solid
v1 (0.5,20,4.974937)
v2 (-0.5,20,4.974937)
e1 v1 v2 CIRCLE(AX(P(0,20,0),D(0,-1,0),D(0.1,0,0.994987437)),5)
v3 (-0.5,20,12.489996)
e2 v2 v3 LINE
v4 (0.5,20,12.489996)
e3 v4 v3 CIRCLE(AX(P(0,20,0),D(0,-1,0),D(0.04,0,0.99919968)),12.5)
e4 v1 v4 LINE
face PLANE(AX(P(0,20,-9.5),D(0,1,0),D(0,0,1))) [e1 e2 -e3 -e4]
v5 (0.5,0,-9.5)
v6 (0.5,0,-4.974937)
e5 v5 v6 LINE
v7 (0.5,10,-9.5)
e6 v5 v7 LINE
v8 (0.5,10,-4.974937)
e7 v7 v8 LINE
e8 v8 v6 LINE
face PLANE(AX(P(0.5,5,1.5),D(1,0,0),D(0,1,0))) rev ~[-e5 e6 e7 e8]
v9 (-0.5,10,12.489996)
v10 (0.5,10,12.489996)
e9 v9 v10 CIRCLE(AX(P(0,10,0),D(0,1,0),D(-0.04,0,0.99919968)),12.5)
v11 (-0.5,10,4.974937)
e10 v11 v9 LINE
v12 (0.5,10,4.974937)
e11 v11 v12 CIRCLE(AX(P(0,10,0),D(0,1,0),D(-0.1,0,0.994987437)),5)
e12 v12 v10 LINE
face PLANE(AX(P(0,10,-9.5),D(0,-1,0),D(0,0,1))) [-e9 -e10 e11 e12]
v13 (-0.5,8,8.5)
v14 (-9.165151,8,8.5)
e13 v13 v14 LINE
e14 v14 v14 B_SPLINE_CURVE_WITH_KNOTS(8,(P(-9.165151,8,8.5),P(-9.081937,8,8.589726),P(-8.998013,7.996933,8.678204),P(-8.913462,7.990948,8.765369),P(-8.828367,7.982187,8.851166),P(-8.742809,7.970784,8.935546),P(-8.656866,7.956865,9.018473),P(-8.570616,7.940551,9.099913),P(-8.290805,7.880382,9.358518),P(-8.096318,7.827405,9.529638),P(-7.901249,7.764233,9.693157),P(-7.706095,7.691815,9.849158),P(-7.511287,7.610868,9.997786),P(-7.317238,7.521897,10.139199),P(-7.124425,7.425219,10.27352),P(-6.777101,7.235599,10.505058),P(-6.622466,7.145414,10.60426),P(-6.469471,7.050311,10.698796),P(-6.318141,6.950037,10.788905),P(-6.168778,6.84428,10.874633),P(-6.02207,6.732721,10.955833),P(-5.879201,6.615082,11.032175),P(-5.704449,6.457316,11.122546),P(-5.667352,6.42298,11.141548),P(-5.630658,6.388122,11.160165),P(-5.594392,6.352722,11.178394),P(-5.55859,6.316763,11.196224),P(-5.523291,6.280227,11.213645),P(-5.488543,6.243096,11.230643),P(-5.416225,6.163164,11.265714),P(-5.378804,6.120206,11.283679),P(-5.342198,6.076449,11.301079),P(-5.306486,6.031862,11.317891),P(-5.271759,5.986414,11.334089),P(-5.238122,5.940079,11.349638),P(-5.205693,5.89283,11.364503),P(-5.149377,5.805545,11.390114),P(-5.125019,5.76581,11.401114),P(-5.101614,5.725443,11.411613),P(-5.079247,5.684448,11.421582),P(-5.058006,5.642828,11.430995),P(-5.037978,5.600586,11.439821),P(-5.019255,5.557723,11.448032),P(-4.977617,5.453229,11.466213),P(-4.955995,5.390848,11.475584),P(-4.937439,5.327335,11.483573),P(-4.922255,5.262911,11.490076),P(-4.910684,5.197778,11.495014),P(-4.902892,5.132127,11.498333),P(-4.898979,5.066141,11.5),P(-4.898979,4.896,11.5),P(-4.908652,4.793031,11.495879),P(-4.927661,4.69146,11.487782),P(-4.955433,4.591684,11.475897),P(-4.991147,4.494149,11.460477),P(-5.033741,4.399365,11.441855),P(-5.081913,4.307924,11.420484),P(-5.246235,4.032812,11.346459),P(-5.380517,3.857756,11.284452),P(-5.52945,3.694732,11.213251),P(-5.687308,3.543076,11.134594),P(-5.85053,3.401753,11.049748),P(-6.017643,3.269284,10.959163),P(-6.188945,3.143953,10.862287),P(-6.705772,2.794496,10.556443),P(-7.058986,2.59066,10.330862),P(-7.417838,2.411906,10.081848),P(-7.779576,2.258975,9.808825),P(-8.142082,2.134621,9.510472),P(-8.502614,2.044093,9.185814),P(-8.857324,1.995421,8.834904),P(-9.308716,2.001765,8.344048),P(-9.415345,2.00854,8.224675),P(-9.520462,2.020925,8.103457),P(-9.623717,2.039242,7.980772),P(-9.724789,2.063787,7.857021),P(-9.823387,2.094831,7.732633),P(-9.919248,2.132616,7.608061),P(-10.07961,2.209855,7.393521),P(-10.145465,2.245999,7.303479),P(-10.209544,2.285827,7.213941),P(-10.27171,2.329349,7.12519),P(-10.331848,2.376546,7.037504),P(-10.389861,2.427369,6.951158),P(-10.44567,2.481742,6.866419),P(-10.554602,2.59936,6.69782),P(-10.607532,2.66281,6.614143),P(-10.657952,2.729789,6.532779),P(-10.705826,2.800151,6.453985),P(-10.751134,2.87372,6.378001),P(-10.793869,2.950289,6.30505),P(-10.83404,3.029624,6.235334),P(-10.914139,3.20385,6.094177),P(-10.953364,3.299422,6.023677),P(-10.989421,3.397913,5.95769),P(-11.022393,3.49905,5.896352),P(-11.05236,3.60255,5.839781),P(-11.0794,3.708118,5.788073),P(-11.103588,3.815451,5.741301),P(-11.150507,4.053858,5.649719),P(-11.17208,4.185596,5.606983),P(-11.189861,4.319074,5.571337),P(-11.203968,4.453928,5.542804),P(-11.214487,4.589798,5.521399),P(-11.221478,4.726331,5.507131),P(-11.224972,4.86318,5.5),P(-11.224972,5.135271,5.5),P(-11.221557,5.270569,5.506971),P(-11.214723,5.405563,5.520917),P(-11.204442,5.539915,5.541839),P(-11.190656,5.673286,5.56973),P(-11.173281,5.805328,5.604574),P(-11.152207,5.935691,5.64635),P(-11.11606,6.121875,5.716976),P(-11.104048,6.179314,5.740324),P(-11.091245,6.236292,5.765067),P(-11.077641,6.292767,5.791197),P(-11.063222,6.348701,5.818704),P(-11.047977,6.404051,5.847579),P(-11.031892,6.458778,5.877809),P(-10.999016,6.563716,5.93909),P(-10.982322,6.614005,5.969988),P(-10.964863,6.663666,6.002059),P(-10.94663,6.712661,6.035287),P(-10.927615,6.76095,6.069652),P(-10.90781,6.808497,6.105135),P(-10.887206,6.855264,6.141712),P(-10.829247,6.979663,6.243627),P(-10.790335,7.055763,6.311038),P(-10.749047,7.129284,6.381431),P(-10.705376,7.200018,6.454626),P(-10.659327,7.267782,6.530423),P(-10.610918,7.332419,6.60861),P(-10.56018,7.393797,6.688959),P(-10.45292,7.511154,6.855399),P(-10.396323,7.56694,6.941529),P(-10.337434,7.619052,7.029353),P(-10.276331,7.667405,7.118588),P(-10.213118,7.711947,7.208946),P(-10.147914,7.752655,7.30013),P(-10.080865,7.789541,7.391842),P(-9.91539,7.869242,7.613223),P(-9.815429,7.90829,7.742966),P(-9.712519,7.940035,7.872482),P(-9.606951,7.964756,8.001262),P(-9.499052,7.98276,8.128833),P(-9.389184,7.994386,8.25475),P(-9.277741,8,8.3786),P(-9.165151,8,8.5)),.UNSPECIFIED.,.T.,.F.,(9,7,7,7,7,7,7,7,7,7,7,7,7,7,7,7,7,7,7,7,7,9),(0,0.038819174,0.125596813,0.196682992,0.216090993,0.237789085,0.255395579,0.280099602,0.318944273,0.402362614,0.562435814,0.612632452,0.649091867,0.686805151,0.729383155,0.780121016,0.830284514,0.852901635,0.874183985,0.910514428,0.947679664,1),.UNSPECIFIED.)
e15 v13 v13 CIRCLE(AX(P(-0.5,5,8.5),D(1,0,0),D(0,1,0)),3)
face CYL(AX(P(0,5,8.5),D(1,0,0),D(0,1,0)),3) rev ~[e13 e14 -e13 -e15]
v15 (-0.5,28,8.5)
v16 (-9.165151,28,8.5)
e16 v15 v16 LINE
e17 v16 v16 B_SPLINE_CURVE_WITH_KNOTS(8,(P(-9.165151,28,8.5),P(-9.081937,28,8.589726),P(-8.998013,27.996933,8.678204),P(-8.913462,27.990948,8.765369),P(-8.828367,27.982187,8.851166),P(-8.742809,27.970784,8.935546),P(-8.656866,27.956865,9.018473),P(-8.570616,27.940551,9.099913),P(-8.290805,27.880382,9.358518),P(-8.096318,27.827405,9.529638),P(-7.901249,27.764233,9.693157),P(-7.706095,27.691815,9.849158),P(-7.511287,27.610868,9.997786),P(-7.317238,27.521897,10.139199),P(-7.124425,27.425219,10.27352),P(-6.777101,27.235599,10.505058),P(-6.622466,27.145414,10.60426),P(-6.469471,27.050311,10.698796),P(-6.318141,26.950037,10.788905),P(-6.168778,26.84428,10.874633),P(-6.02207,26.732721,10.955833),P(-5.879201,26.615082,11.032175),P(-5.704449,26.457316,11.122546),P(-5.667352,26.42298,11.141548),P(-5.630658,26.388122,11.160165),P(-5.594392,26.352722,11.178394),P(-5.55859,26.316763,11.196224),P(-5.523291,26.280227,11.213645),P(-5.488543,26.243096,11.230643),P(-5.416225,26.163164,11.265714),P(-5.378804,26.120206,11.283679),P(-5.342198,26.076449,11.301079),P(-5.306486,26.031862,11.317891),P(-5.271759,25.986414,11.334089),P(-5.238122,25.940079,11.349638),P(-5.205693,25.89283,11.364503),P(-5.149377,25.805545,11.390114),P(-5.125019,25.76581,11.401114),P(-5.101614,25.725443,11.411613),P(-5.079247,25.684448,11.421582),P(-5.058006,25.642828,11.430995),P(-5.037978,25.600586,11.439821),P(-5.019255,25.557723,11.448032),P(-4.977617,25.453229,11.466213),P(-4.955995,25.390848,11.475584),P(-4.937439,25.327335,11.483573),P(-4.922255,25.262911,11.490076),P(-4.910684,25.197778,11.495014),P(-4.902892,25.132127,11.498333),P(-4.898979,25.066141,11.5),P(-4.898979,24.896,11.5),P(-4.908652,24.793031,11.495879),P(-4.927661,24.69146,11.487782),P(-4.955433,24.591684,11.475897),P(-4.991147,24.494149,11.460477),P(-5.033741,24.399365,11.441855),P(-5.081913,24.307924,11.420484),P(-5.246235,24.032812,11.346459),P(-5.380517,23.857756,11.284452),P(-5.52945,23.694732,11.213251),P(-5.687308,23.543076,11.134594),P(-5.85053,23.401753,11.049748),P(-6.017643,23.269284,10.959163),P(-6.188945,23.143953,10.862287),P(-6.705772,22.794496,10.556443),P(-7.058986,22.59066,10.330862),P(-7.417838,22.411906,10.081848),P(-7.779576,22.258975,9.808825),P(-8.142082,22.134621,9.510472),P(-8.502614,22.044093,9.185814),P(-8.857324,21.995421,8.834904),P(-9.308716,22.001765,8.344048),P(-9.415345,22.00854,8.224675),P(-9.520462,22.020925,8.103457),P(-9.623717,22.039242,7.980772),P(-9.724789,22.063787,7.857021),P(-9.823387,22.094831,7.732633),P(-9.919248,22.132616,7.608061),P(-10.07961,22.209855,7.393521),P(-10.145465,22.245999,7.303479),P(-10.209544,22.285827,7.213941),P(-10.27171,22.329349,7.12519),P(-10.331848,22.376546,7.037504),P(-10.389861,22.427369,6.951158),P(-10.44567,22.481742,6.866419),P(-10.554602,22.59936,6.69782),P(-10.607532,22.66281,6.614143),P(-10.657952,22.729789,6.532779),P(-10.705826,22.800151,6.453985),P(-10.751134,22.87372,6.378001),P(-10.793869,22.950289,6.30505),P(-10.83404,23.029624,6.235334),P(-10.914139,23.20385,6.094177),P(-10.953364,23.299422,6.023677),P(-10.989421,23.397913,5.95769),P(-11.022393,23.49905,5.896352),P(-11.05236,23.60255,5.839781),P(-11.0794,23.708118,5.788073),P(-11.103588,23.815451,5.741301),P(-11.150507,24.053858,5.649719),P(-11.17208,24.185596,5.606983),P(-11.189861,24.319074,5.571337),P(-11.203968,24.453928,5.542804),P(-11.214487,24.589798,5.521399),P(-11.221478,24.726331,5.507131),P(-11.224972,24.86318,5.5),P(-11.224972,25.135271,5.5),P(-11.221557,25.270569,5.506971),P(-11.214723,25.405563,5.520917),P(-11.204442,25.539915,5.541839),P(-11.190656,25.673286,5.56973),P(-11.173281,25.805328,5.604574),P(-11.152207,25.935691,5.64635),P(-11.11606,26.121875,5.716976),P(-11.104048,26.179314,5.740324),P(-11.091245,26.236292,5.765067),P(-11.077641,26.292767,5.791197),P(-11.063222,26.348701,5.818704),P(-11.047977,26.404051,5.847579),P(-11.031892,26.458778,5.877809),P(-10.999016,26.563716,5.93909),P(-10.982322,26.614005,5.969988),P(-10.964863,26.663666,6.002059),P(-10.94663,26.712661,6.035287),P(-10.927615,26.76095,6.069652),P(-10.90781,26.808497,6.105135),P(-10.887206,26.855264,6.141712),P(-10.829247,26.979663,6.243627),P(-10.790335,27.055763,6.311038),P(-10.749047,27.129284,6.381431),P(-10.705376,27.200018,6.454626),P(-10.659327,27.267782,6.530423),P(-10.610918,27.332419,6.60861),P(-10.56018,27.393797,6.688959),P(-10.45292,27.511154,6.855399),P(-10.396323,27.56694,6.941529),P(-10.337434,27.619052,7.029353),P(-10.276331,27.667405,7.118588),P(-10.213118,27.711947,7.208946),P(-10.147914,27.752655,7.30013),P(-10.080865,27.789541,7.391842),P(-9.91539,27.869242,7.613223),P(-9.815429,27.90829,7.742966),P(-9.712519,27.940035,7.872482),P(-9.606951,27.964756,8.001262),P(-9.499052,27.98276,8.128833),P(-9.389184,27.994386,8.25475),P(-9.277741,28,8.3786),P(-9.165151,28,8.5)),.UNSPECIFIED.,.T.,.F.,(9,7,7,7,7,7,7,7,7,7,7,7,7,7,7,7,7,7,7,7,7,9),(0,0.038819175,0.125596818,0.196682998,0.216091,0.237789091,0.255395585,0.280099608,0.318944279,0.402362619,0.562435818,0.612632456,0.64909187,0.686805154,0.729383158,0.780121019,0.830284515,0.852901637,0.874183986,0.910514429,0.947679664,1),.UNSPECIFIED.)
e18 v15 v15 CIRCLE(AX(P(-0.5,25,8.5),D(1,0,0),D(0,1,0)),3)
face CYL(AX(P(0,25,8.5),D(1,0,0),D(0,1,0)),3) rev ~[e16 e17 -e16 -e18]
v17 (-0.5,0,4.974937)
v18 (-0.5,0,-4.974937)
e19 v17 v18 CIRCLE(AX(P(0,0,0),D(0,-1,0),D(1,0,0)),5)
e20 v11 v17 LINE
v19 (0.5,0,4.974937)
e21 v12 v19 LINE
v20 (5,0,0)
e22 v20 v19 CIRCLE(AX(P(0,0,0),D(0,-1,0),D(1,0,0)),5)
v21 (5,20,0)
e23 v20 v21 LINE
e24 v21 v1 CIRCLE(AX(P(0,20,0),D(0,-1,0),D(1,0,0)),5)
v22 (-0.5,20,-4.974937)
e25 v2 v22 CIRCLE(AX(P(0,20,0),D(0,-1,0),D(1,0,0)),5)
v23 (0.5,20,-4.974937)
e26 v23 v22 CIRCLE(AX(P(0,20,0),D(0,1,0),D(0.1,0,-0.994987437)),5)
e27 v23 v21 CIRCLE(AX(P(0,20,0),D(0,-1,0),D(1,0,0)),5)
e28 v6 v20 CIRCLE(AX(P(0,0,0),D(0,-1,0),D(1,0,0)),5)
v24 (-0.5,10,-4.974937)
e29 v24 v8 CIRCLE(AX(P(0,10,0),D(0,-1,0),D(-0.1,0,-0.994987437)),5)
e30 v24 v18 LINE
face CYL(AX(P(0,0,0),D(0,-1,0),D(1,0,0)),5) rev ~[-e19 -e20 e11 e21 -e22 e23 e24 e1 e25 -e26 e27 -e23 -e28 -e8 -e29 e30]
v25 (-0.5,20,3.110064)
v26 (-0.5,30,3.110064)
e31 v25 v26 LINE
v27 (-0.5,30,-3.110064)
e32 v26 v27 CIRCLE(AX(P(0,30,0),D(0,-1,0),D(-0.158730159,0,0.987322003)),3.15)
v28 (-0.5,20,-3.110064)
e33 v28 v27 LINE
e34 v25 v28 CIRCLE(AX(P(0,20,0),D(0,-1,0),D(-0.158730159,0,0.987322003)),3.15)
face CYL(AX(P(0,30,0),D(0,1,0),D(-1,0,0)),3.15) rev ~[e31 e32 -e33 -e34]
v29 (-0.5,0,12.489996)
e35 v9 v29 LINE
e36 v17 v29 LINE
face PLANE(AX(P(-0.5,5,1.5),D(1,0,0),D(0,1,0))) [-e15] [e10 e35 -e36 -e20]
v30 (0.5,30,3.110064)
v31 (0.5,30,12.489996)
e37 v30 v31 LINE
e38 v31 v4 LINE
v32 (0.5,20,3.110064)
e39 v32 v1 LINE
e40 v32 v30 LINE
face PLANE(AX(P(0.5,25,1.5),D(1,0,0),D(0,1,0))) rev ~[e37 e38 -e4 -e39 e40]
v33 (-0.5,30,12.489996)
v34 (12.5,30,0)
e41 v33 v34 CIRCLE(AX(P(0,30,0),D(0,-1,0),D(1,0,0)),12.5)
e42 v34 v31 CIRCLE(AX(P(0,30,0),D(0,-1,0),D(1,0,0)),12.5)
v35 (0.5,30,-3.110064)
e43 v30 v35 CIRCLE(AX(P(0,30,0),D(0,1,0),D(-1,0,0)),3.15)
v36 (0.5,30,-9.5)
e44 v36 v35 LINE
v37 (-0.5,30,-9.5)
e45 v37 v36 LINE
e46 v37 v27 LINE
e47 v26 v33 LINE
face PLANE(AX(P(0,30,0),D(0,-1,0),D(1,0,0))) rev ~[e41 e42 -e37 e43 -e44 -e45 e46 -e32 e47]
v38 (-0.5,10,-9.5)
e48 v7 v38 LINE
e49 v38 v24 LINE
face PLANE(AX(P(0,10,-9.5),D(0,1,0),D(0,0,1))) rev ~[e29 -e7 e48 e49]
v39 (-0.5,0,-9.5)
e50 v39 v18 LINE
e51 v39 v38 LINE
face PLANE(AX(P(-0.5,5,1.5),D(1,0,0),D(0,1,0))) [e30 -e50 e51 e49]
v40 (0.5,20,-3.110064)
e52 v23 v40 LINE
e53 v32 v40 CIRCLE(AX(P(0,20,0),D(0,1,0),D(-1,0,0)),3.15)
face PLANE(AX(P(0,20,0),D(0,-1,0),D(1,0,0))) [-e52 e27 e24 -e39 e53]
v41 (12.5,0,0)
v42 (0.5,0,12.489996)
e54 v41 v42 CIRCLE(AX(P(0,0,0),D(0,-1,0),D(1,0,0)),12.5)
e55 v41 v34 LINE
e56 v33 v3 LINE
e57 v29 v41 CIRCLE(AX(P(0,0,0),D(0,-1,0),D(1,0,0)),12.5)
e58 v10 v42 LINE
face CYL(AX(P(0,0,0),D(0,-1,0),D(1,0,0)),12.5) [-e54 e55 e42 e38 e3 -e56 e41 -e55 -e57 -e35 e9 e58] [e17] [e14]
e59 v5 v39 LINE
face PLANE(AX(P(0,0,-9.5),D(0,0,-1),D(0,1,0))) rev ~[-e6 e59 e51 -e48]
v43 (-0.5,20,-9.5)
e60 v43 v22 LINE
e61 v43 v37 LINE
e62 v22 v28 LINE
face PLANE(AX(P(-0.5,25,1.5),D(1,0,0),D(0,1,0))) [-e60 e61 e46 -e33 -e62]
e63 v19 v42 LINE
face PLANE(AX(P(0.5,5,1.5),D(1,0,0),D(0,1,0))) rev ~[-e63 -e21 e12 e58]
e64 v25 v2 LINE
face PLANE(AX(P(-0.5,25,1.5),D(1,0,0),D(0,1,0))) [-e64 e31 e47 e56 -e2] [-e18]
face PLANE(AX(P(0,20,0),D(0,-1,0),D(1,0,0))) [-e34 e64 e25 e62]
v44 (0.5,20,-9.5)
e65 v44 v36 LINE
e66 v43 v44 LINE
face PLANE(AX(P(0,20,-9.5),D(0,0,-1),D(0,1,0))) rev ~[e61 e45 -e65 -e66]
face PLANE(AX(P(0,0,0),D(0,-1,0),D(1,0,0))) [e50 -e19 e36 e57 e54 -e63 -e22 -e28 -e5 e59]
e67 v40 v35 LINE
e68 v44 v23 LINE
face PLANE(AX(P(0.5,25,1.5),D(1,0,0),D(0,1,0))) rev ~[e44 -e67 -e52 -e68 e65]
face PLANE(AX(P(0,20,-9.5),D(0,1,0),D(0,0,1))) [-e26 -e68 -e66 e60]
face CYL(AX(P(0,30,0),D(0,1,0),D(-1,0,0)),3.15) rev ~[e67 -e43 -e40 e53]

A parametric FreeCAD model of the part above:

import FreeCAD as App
import Part
import Sketcher

V = App.Vector
Q = App.Units.Quantity

doc = App.newDocument("Part")
params = doc.addObject("Spreadsheet::Sheet", "Params")
for row, (alias, value) in enumerate([
    ("sketch1_diameter", "25 mm"),
    ("pad1_length", "30 mm"),
    ("sketch2_diameter", "10 mm"),
    ("pocket1_length", "20 mm"),
    ("sketch3_diameter", "6.3 mm"),
    ("sketch4_width", "10 mm"),
    ("sketch4_height", "22 mm"),
    ("pocket3_length", "0.5 mm"),
    ("pocket3_length2", "0.5 mm"),
    ("sketch5_diameter", "6 mm"),
], start=1):
    params.set(f"A{row}", alias)
    params.set(f"B{row}", "=" + value)
    params.setAlias(f"B{row}", alias)

body = doc.addObject("PartDesign::Body", "Body")

# Sketch on XZ plane
sketch1 = doc.addObject("Sketcher::SketchObject", "Sketch")
body.addObject(sketch1)
sketch1.AttachmentSupport = (doc.XZ_Plane, [""])
sketch1.MapMode = "FlatFace"
sketch1.addGeometry(Part.Circle(V(0, 0, 0), V(0, 0, 1), 12), False)
sketch1.addConstraint(Sketcher.Constraint("Coincident", 0, 3, -1, 1))
sketch1.addConstraint(Sketcher.Constraint("Diameter", 0, Q("25 mm")))
sketch1.setExpression("Constraints[1]", "Params.sketch1_diameter")
pad1 = doc.addObject("PartDesign::Pad", "Pad")
body.addObject(pad1)
pad1.Profile = sketch1
pad1.setExpression("Length", "Params.pad1_length")
pad1.Reversed = True

# Sketch on XZ plane
sketch2 = doc.addObject("Sketcher::SketchObject", "Sketch001")
body.addObject(sketch2)
sketch2.AttachmentSupport = (doc.XZ_Plane, [""])
sketch2.MapMode = "FlatFace"
sketch2.addGeometry(Part.Circle(V(0, 0, 0), V(0, 0, 1), 5), False)
sketch2.addConstraint(Sketcher.Constraint("Coincident", 0, 3, -1, 1))
sketch2.addConstraint(Sketcher.Constraint("Diameter", 0, Q("10 mm")))
sketch2.setExpression("Constraints[1]", "Params.sketch2_diameter")
pocket1 = doc.addObject("PartDesign::Pocket", "Pocket")
body.addObject(pocket1)
pocket1.Profile = sketch2
pocket1.setExpression("Length", "Params.pocket1_length")

# Sketch on XZ plane
sketch3 = doc.addObject("Sketcher::SketchObject", "Sketch002")
body.addObject(sketch3)
sketch3.AttachmentSupport = (doc.XZ_Plane, [""])
sketch3.MapMode = "FlatFace"
sketch3.AttachmentOffset = App.Placement(V(0, 0, -30), App.Rotation())
sketch3.addGeometry(Part.Circle(V(0, 0, 0), V(0, 0, 1), 3.1), False)
sketch3.addConstraint(Sketcher.Constraint("Coincident", 0, 3, -1, 1))
sketch3.addConstraint(Sketcher.Constraint("Diameter", 0, Q("6.3 mm")))
sketch3.setExpression("Constraints[1]", "Params.sketch3_diameter")
pocket2 = doc.addObject("PartDesign::Pocket", "Pocket001")
body.addObject(pocket2)
pocket2.Profile = sketch3
pocket2.Type = "ThroughAll"
pocket2.Reversed = True

# Sketch on YZ plane
sketch4 = doc.addObject("Sketcher::SketchObject", "Sketch003")
body.addObject(sketch4)
sketch4.AttachmentSupport = (doc.YZ_Plane, [""])
sketch4.MapMode = "FlatFace"
sketch4.addGeometry(Part.LineSegment(V(0, 12, 0), V(0, -10, 0)), False)
sketch4.addGeometry(Part.LineSegment(V(0, -10, 0), V(10, -10, 0)), False)
sketch4.addGeometry(Part.LineSegment(V(10, -10, 0), V(10, 12, 0)), False)
sketch4.addGeometry(Part.LineSegment(V(10, 12, 0), V(0, 12, 0)), False)
sketch4.addGeometry(Part.LineSegment(V(20, 12, 0), V(20, -10, 0)), False)
sketch4.addGeometry(Part.LineSegment(V(20, -10, 0), V(30, -10, 0)), False)
sketch4.addGeometry(Part.LineSegment(V(30, -10, 0), V(30, 12, 0)), False)
sketch4.addGeometry(Part.LineSegment(V(30, 12, 0), V(20, 12, 0)), False)
sketch4.addConstraint(Sketcher.Constraint("Coincident", 0, 2, 1, 1))
sketch4.addConstraint(Sketcher.Constraint("Coincident", 1, 2, 2, 1))
sketch4.addConstraint(Sketcher.Constraint("Coincident", 2, 2, 3, 1))
sketch4.addConstraint(Sketcher.Constraint("Coincident", 3, 2, 0, 1))
sketch4.addConstraint(Sketcher.Constraint("Coincident", 4, 2, 5, 1))
sketch4.addConstraint(Sketcher.Constraint("Coincident", 5, 2, 6, 1))
sketch4.addConstraint(Sketcher.Constraint("Coincident", 6, 2, 7, 1))
sketch4.addConstraint(Sketcher.Constraint("Coincident", 7, 2, 4, 1))
sketch4.addConstraint(Sketcher.Constraint("Vertical", 0))
sketch4.addConstraint(Sketcher.Constraint("Horizontal", 1))
sketch4.addConstraint(Sketcher.Constraint("Vertical", 2))
sketch4.addConstraint(Sketcher.Constraint("Horizontal", 3))
sketch4.addConstraint(Sketcher.Constraint("Vertical", 4))
sketch4.addConstraint(Sketcher.Constraint("Horizontal", 5))
sketch4.addConstraint(Sketcher.Constraint("Vertical", 6))
sketch4.addConstraint(Sketcher.Constraint("Horizontal", 7))
sketch4.addConstraint(Sketcher.Constraint("PointOnObject", 0, 2, -2))
sketch4.addConstraint(Sketcher.Constraint("Horizontal", 1, 2, 4, 2))
sketch4.addConstraint(Sketcher.Constraint("Horizontal", 3, 2, 6, 2))
sketch4.addConstraint(Sketcher.Constraint("Equal", 3, 5))
sketch4.addConstraint(Sketcher.Constraint("DistanceX", 1, 1, 1, 2, Q("10 mm")))
sketch4.addConstraint(Sketcher.Constraint("DistanceY", 0, 2, 0, 1, Q("22 mm")))
sketch4.addConstraint(Sketcher.Constraint("DistanceX", -1, 1, 4, 2, Q("20 mm")))
sketch4.addConstraint(Sketcher.Constraint("DistanceY", 0, 2, -1, 1, Q("9.5 mm")))
sketch4.setExpression("Constraints[20]", "Params.sketch4_width")
sketch4.setExpression("Constraints[21]", "Params.sketch4_height")
pocket3 = doc.addObject("PartDesign::Pocket", "Pocket002")
body.addObject(pocket3)
pocket3.Profile = sketch4
pocket3.Type = "TwoLengths"
pocket3.setExpression("Length", "Params.pocket3_length")
pocket3.setExpression("Length2", "Params.pocket3_length2")

# Sketch on YZ plane
sketch5 = doc.addObject("Sketcher::SketchObject", "Sketch004")
body.addObject(sketch5)
sketch5.AttachmentSupport = (doc.YZ_Plane, [""])
sketch5.MapMode = "FlatFace"
sketch5.addGeometry(Part.Circle(V(5, 8.5, 0), V(0, 0, 1), 3), False)
sketch5.addGeometry(Part.Circle(V(25, 8.5, 0), V(0, 0, 1), 3), False)
sketch5.addConstraint(Sketcher.Constraint("Equal", 0, 1))
sketch5.addConstraint(Sketcher.Constraint("Horizontal", 0, 3, 1, 3))
sketch5.addConstraint(Sketcher.Constraint("Diameter", 0, Q("6 mm")))
sketch5.addConstraint(Sketcher.Constraint("DistanceX", -1, 1, 0, 3, Q("5 mm")))
sketch5.addConstraint(Sketcher.Constraint("DistanceX", -1, 1, 1, 3, Q("25 mm")))
sketch5.addConstraint(Sketcher.Constraint("DistanceY", -1, 1, 0, 3, Q("8.5 mm")))
sketch5.setExpression("Constraints[2]", "Params.sketch5_diameter")
pocket4 = doc.addObject("PartDesign::Pocket", "Pocket003")
body.addObject(pocket4)
pocket4.Profile = sketch5
pocket4.Type = "ThroughAll"

doc.recompute()
